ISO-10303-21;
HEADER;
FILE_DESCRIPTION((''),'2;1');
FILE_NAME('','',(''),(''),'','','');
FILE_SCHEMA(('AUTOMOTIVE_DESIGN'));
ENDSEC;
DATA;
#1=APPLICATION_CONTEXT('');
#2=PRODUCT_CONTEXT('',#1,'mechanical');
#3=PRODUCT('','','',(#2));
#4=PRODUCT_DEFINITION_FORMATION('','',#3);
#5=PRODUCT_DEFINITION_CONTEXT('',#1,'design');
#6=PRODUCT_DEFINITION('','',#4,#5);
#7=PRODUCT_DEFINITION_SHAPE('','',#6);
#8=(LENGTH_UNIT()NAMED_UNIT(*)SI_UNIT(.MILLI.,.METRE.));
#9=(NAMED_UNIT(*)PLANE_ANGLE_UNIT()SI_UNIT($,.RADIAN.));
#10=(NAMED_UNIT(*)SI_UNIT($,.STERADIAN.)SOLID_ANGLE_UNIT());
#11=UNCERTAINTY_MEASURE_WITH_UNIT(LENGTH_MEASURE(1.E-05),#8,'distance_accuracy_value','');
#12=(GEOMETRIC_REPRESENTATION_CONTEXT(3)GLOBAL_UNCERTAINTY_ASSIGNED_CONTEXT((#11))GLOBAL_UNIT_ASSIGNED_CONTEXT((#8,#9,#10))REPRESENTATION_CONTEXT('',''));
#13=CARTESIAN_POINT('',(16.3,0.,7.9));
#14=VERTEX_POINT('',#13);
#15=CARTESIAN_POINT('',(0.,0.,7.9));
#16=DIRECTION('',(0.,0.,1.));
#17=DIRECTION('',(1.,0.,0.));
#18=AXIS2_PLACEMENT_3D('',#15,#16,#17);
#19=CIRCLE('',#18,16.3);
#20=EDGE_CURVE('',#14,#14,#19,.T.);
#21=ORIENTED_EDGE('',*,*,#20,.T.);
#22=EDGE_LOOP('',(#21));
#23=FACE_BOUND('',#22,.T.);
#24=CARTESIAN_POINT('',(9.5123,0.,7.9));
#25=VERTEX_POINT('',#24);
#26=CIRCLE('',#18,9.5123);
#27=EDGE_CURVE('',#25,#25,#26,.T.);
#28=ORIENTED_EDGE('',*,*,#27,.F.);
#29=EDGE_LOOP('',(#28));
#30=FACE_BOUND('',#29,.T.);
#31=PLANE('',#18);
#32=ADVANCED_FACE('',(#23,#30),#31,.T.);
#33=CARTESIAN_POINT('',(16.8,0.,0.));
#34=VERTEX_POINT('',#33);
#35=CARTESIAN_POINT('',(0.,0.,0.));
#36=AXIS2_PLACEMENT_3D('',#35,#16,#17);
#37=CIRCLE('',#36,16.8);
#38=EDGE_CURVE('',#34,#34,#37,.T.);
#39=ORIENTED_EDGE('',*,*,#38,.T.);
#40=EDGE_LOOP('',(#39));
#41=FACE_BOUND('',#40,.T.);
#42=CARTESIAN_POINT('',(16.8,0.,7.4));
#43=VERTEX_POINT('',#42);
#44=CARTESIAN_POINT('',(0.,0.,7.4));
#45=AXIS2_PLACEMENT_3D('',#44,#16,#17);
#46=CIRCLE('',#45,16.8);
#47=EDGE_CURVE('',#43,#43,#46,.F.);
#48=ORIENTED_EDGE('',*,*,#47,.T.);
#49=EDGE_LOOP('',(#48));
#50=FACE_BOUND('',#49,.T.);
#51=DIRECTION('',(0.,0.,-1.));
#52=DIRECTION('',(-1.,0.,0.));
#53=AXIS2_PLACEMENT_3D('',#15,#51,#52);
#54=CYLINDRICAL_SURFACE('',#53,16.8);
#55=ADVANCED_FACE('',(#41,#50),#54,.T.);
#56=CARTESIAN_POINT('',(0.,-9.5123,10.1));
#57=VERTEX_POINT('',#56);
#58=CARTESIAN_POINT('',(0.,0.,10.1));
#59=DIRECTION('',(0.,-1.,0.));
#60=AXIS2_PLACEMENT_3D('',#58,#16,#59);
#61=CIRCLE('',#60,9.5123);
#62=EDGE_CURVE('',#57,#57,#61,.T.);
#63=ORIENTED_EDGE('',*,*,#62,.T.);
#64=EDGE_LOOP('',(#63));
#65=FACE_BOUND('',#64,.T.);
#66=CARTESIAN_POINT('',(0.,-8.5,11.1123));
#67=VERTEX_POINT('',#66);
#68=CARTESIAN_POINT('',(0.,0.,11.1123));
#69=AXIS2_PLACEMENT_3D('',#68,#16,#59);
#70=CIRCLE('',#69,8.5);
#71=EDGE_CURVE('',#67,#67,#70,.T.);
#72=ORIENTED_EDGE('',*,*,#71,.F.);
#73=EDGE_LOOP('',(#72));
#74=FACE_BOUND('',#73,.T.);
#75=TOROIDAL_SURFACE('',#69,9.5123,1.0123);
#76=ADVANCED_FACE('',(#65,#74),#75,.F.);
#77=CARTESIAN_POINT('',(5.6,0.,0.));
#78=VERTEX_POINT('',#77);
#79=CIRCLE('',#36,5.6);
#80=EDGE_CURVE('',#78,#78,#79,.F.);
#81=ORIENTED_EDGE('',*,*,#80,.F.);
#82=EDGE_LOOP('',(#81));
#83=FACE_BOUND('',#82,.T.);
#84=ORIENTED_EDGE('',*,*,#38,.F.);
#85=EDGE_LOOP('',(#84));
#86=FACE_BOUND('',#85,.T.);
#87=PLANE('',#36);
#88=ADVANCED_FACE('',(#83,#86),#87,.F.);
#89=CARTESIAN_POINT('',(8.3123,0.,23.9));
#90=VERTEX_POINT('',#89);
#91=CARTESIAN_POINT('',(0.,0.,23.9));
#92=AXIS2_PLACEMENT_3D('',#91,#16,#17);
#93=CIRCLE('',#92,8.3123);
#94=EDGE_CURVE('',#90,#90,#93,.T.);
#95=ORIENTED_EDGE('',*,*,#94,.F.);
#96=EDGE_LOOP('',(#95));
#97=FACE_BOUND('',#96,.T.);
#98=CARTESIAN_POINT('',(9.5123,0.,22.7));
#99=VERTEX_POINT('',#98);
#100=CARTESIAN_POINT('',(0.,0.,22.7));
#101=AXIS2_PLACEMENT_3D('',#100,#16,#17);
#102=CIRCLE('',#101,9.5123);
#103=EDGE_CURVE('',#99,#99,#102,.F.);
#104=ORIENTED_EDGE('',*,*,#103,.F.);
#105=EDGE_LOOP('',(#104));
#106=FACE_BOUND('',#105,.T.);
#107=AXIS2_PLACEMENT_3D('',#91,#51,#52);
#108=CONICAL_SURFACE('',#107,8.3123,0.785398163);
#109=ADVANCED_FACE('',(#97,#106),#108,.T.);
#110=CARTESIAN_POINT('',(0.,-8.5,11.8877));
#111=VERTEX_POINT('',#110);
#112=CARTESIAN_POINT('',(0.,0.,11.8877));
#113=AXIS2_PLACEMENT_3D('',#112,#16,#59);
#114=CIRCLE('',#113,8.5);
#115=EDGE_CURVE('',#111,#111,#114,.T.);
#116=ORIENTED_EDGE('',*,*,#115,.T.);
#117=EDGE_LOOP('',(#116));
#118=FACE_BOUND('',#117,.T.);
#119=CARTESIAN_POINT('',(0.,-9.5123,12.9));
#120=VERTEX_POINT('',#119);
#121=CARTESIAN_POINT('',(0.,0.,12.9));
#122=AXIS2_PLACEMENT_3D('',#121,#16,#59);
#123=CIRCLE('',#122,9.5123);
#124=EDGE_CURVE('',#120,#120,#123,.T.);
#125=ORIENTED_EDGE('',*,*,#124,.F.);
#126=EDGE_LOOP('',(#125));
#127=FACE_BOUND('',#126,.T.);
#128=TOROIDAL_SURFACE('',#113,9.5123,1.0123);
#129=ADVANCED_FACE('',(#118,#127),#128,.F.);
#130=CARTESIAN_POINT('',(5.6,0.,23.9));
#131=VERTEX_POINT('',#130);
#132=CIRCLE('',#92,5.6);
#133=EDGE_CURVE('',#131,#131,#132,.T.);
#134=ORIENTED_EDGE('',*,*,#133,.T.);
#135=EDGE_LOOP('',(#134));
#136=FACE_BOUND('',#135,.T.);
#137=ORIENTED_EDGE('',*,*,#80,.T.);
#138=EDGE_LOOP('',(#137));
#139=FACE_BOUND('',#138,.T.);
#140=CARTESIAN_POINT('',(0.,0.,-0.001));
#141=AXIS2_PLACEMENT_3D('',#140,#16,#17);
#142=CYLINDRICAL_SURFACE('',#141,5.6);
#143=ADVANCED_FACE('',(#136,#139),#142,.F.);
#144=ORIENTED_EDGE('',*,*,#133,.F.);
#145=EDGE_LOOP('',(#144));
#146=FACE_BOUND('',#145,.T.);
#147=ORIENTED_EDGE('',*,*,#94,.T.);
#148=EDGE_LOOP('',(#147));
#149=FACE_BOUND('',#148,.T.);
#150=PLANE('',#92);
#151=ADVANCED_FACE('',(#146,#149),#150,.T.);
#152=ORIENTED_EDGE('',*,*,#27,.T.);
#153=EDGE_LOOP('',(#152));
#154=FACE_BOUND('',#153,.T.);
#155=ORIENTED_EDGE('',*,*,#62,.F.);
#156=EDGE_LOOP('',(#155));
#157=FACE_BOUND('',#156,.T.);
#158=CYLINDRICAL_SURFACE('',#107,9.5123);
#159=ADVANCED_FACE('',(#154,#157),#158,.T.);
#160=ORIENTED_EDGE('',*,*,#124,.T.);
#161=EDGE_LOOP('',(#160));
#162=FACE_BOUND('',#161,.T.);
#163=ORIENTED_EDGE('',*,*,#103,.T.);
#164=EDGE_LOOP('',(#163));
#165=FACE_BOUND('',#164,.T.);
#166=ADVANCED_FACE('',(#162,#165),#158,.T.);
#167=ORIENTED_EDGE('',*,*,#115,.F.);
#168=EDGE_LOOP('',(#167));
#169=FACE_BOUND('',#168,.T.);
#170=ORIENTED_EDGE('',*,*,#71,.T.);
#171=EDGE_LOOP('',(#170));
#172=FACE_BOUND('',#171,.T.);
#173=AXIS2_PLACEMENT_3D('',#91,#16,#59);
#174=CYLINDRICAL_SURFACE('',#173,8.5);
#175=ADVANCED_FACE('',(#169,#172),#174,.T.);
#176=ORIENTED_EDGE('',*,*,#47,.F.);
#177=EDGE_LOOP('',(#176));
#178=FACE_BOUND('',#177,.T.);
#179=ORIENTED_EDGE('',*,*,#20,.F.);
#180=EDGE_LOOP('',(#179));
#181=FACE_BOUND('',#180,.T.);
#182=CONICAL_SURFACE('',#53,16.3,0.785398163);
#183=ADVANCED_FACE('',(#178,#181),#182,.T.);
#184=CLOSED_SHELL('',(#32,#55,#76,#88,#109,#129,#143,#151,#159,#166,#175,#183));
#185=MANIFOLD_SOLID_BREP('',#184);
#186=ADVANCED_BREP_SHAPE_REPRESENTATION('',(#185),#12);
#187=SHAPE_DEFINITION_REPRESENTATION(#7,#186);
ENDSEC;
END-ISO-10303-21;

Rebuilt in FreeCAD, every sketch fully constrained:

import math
import FreeCAD as App
import Part
import Sketcher
from FreeCAD import Vector


def edges_at(feature, points):
    """Names of the edges that pass closest to the given points."""
    edges = feature.Shape.Edges
    near = lambda p: min(range(len(edges)), key=lambda i: edges[i].distToShape(Part.Vertex(*p))[0])
    return sorted({f"Edge{near(p) + 1}" for p in points})

doc = App.newDocument("Part")
body = doc.addObject("PartDesign::Body", "Body")

# Sketch on XY plane
sketch1 = body.newObject("Sketcher::SketchObject", "Sketch")
sketch1.AttachmentSupport = (doc.getObject("XY_Plane"), [""])
sketch1.MapMode = "FlatFace"
sketch1.addGeometry(Part.Circle(Vector(0, 0, 0), Vector(0, 0, 1), 17), False)
sketch1.addConstraint([
    Sketcher.Constraint("Coincident", 0, 3, -1, 1),
    Sketcher.Constraint("Diameter", 0, 33.6),
])
pad1 = body.newObject("PartDesign::Pad", "Pad")
pad1.Profile = sketch1
pad1.Length = 7.9

# Sketch on XY plane
sketch2 = body.newObject("Sketcher::SketchObject", "Sketch001")
sketch2.AttachmentSupport = (doc.getObject("XY_Plane"), [""])
sketch2.MapMode = "FlatFace"
sketch2.AttachmentOffset = App.Placement(Vector(0, 0, 7.9), App.Rotation())
sketch2.addGeometry(Part.Circle(Vector(0, 0, 0), Vector(0, 0, 1), 10), False)
sketch2.addConstraint([
    Sketcher.Constraint("Coincident", 0, 3, -1, 1),
    Sketcher.Constraint("Diameter", 0, 19.0246),
])
pad2 = body.newObject("PartDesign::Pad", "Pad001")
pad2.Profile = sketch2
pad2.Length = 16

# Sketch on YZ plane
sketch3 = body.newObject("Sketcher::SketchObject", "Sketch002")
sketch3.AttachmentSupport = (doc.getObject("YZ_Plane"), [""])
sketch3.MapMode = "FlatFace"
sketch3.addGeometry([
    Part.LineSegment(Vector(8.5, 11.9, 0), Vector(8.5, 11.1, 0)),
    Part.ArcOfCircle(Part.Circle(Vector(9.5, 11.1, 0), Vector(0, 0, 1), 1), math.radians(180), math.radians(270)),
    Part.LineSegment(Vector(9.5, 10.1, 0), Vector(9.5, 12.9, 0)),
    Part.ArcOfCircle(Part.Circle(Vector(9.5, 11.9, 0), Vector(0, 0, 1), 1), math.radians(90), math.radians(180)),
], False)
sketch3.addConstraint([
    Sketcher.Constraint("Tangent", 0, 2, 1, 1),
    Sketcher.Constraint("Coincident", 1, 2, 2, 1),
    Sketcher.Constraint("Coincident", 2, 2, 3, 1),
    Sketcher.Constraint("Tangent", 3, 2, 0, 1),
    Sketcher.Constraint("Vertical", 0),
    Sketcher.Constraint("Vertical", 2),
    Sketcher.Constraint("Equal", 1, 3),
    Sketcher.Constraint("Vertical", 3, 3, 1, 2),
    Sketcher.Constraint("DistanceY", 2, 1, 2, 2, 2.8),
    Sketcher.Constraint("DistanceX", -1, 1, 0, 2, 8.5),
    Sketcher.Constraint("DistanceY", -1, 1, 1, 2, 10.1),
    Sketcher.Constraint("Radius", 1, 1.0123),
])
groove = body.newObject("PartDesign::Groove", "Groove")
groove.Profile = sketch3
groove.ReferenceAxis = (sketch3, ["V_Axis"])
groove.Angle = 360
doc.recompute()

chamfer = body.newObject("PartDesign::Chamfer", "Chamfer")
chamfer.Base = (groove, edges_at(groove, [(-9.512, 0, 23.9)]))
chamfer.Size = 1.2
doc.recompute()

chamfer2 = body.newObject("PartDesign::Chamfer", "Chamfer001")
chamfer2.Base = (chamfer, edges_at(chamfer, [(-16.8, 0, 7.9)]))
chamfer2.Size = 0.5

# Sketch on XY plane
sketch4 = body.newObject("Sketcher::SketchObject", "Sketch003")
sketch4.AttachmentSupport = (doc.getObject("XY_Plane"), [""])
sketch4.MapMode = "FlatFace"
sketch4.AttachmentOffset = App.Placement(Vector(0, 0, 23.9), App.Rotation())
sketch4.addGeometry(Part.Circle(Vector(0, 0, 0), Vector(0, 0, 1), 6), False)
sketch4.addConstraint([
    Sketcher.Constraint("Coincident", 0, 3, -1, 1),
    Sketcher.Constraint("Diameter", 0, 11.2),
])
pocket1 = body.newObject("PartDesign::Pocket", "Pocket")
pocket1.Profile = sketch4
pocket1.Type = "UpToFirst"

doc.recompute()
